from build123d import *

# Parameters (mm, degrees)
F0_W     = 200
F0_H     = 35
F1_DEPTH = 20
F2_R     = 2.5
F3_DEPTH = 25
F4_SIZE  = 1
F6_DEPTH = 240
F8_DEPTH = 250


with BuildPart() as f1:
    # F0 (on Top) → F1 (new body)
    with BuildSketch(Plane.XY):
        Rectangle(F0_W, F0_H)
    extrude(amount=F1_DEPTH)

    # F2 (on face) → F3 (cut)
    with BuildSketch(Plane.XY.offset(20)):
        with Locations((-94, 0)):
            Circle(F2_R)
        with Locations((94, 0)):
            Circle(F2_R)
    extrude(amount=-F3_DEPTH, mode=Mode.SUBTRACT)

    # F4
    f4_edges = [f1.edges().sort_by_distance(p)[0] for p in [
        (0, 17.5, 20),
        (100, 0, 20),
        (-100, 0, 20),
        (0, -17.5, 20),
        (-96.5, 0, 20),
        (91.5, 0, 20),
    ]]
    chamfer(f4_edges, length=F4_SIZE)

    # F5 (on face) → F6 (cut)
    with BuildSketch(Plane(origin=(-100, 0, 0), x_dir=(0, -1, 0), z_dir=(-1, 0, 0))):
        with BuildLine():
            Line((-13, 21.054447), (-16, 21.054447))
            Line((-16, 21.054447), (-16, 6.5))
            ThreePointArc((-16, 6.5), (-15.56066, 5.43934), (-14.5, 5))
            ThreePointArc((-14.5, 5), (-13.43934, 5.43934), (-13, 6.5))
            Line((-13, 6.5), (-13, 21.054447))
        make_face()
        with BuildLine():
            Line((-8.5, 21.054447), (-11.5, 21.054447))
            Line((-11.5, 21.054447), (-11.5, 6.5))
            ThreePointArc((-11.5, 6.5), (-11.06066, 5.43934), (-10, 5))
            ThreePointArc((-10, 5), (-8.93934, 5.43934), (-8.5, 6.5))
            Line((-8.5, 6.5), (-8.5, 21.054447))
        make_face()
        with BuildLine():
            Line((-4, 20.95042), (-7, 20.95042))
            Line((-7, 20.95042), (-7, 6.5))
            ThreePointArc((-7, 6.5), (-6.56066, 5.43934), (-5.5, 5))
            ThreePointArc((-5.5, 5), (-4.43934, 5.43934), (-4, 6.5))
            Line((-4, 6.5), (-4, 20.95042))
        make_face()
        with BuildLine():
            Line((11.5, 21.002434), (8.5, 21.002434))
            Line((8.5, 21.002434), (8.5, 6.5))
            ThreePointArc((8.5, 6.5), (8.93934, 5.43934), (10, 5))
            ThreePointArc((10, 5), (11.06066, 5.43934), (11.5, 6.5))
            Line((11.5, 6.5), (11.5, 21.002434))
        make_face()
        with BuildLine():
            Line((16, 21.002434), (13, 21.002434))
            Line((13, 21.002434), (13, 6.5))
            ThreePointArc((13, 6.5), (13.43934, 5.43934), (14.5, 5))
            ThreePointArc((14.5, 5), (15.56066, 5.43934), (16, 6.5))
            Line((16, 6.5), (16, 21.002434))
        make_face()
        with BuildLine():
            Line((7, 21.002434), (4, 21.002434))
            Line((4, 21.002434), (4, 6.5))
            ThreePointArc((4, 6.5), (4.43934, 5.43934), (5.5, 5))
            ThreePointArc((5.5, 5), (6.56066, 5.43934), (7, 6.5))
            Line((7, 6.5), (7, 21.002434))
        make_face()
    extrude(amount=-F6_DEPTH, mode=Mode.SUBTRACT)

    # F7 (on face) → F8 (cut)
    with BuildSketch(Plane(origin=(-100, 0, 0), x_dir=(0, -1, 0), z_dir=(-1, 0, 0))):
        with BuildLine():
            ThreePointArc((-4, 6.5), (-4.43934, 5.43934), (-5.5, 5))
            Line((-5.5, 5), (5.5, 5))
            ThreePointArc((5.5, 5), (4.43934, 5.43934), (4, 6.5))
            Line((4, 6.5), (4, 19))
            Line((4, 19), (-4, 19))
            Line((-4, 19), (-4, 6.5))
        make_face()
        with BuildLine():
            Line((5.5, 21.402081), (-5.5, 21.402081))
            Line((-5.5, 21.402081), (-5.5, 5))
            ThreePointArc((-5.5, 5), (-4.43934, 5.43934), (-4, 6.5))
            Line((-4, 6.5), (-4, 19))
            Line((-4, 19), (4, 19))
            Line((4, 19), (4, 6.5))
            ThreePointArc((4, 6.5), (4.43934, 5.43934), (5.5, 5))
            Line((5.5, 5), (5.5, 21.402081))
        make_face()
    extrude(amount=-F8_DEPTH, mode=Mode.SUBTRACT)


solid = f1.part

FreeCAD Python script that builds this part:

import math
import FreeCAD as App
import Part
import Sketcher

V = App.Vector
Q = App.Units.Quantity


def edges_at(feature, points):
    """Names of the edges that pass closest to the given points."""
    edges = feature.Shape.Edges
    near = lambda p: min(range(len(edges)), key=lambda i: edges[i].distToShape(Part.Vertex(*p))[0])
    return sorted({f"Edge{near(p) + 1}" for p in points})


def add_polygon(sketch, points):
    """Adds a closed chain of lines whose ends are joined by coincident constraints."""
    first, n = sketch.GeometryCount, len(points)
    for a, b in zip(points, points[1:] + points[:1]):
        sketch.addGeometry(Part.LineSegment(App.Vector(*a, 0), App.Vector(*b, 0)), False)
    for i in range(n):
        sketch.addConstraint(Sketcher.Constraint("Coincident", first + i, 2, first + (i + 1) % n, 1))

doc = App.newDocument("Part")
body = doc.addObject("PartDesign::Body", "Body")

# Sketch on XY plane
sketch1 = body.newObject("Sketcher::SketchObject", "Sketch")
sketch1.AttachmentSupport = (doc.getObject("XY_Plane"), [""])
sketch1.MapMode = "FlatFace"
add_polygon(sketch1, [(-100, 18), (-100, -18), (100, -18), (100, 18)])  # lines 0-3
sketch1.addConstraint(Sketcher.Constraint("Vertical", 0))
sketch1.addConstraint(Sketcher.Constraint("Horizontal", 1))
sketch1.addConstraint(Sketcher.Constraint("Vertical", 2))
sketch1.addConstraint(Sketcher.Constraint("Horizontal", 3))
sketch1.addConstraint(Sketcher.Constraint("Symmetric", 0, 2, 2, 2, -1, 1))
sketch1.addConstraint(Sketcher.Constraint("DistanceX", 1, 1, 1, 2, Q("200 mm")))
sketch1.addConstraint(Sketcher.Constraint("DistanceY", 0, 2, 0, 1, Q("35 mm")))
pad1 = body.newObject("PartDesign::Pad", "Pad")
pad1.Profile = sketch1
pad1.Length = 20

# Sketch on XY plane
sketch2 = body.newObject("Sketcher::SketchObject", "Sketch001")
sketch2.AttachmentSupport = (doc.getObject("XY_Plane"), [""])
sketch2.MapMode = "FlatFace"
sketch2.AttachmentOffset = App.Placement(V(0, 0, 20), App.Rotation())
sketch2.addGeometry(Part.Circle(V(-94, 0, 0), V(0, 0, 1), 2.5), False)
sketch2.addGeometry(Part.Circle(V(94, 0, 0), V(0, 0, 1), 2.5), False)
sketch2.addConstraint(Sketcher.Constraint("Equal", 0, 1))
sketch2.addConstraint(Sketcher.Constraint("Symmetric", 0, 3, 1, 3, -1, 1))
sketch2.addConstraint(Sketcher.Constraint("PointOnObject", 0, 3, -1))
sketch2.addConstraint(Sketcher.Constraint("Diameter", 0, Q("5 mm")))
sketch2.addConstraint(Sketcher.Constraint("DistanceX", 0, 3, -1, 1, Q("94 mm")))
pocket1 = body.newObject("PartDesign::Pocket", "Pocket")
pocket1.Profile = sketch2
pocket1.Length = 25
doc.recompute()

chamfer = body.newObject("PartDesign::Chamfer", "Chamfer")
chamfer.Base = (pocket1, edges_at(pocket1, [
    (0, 17.5, 20),
    (100, 0, 20),
    (-100, 0, 20),
    (0, -17.5, 20),
    (-96.5, 0, 20),
    (91.5, 0, 20),
]))
chamfer.Size = 1

# Sketch on YZ plane
sketch3 = body.newObject("Sketcher::SketchObject", "Sketch002")
sketch3.AttachmentSupport = (doc.getObject("YZ_Plane"), [""])
sketch3.MapMode = "FlatFace"
sketch3.AttachmentOffset = App.Placement(V(0, 0, -100), App.Rotation())
sketch3.addGeometry(Part.LineSegment(V(13, 21.1, 0), V(16, 21.1, 0)), False)
sketch3.addGeometry(Part.LineSegment(V(16, 21.1, 0), V(16, 6.5, 0)), False)
sketch3.addGeometry(Part.ArcOfCircle(Part.Circle(V(14.5, 6.5, 0), V(0, 0, 1), 1.5), math.radians(-90), math.radians(0)), False)
sketch3.addGeometry(Part.ArcOfCircle(Part.Circle(V(14.5, 6.5, 0), V(0, 0, 1), 1.5), math.radians(-180), math.radians(-90)), False)
sketch3.addGeometry(Part.LineSegment(V(13, 6.5, 0), V(13, 21.1, 0)), False)
sketch3.addGeometry(Part.LineSegment(V(8.5, 21.1, 0), V(11.5, 21.1, 0)), False)
sketch3.addGeometry(Part.LineSegment(V(11.5, 21.1, 0), V(11.5, 6.5, 0)), False)
sketch3.addGeometry(Part.ArcOfCircle(Part.Circle(V(10, 6.5, 0), V(0, 0, 1), 1.5), math.radians(-90), math.radians(0)), False)
sketch3.addGeometry(Part.ArcOfCircle(Part.Circle(V(10, 6.5, 0), V(0, 0, 1), 1.5), math.radians(-180), math.radians(-90)), False)
sketch3.addGeometry(Part.LineSegment(V(8.5, 6.5, 0), V(8.5, 21.1, 0)), False)
sketch3.addGeometry(Part.LineSegment(V(4, 21, 0), V(7, 21, 0)), False)
sketch3.addGeometry(Part.LineSegment(V(7, 21, 0), V(7, 6.5, 0)), False)
sketch3.addGeometry(Part.ArcOfCircle(Part.Circle(V(5.5, 6.5, 0), V(0, 0, 1), 1.5), math.radians(-90), math.radians(0)), False)
sketch3.addGeometry(Part.ArcOfCircle(Part.Circle(V(5.5, 6.5, 0), V(0, 0, 1), 1.5), math.radians(-180), math.radians(-90)), False)
sketch3.addGeometry(Part.LineSegment(V(4, 6.5, 0), V(4, 21, 0)), False)
sketch3.addGeometry(Part.LineSegment(V(-11.5, 21, 0), V(-8.5, 21, 0)), False)
sketch3.addGeometry(Part.LineSegment(V(-8.5, 21, 0), V(-8.5, 6.5, 0)), False)
sketch3.addGeometry(Part.ArcOfCircle(Part.Circle(V(-10, 6.5, 0), V(0, 0, 1), 1.5), math.radians(-90), math.radians(0)), False)
sketch3.addGeometry(Part.ArcOfCircle(Part.Circle(V(-10, 6.5, 0), V(0, 0, 1), 1.5), math.radians(-180), math.radians(-90)), False)
sketch3.addGeometry(Part.LineSegment(V(-11.5, 6.5, 0), V(-11.5, 21, 0)), False)
sketch3.addGeometry(Part.LineSegment(V(-16, 21, 0), V(-13, 21, 0)), False)
sketch3.addGeometry(Part.LineSegment(V(-13, 21, 0), V(-13, 6.5, 0)), False)
sketch3.addGeometry(Part.ArcOfCircle(Part.Circle(V(-14.5, 6.5, 0), V(0, 0, 1), 1.5), math.radians(-90), math.radians(0)), False)
sketch3.addGeometry(Part.ArcOfCircle(Part.Circle(V(-14.5, 6.5, 0), V(0, 0, 1), 1.5), math.radians(-180), math.radians(-90)), False)
sketch3.addGeometry(Part.LineSegment(V(-16, 6.5, 0), V(-16, 21, 0)), False)
sketch3.addGeometry(Part.LineSegment(V(-7, 21, 0), V(-4, 21, 0)), False)
sketch3.addGeometry(Part.LineSegment(V(-4, 21, 0), V(-4, 6.5, 0)), False)
sketch3.addGeometry(Part.ArcOfCircle(Part.Circle(V(-5.5, 6.5, 0), V(0, 0, 1), 1.5), math.radians(-90), math.radians(0)), False)
sketch3.addGeometry(Part.ArcOfCircle(Part.Circle(V(-5.5, 6.5, 0), V(0, 0, 1), 1.5), math.radians(-180), math.radians(-90)), False)
sketch3.addGeometry(Part.LineSegment(V(-7, 6.5, 0), V(-7, 21, 0)), False)
sketch3.addConstraint(Sketcher.Constraint("Coincident", 0, 2, 1, 1))
sketch3.addConstraint(Sketcher.Constraint("Tangent", 1, 2, 2, 2))
sketch3.addConstraint(Sketcher.Constraint("Tangent", 2, 1, 3, 2))
sketch3.addConstraint(Sketcher.Constraint("Tangent", 3, 1, 4, 1))
sketch3.addConstraint(Sketcher.Constraint("Coincident", 4, 2, 0, 1))
sketch3.addConstraint(Sketcher.Constraint("Coincident", 5, 2, 6, 1))
sketch3.addConstraint(Sketcher.Constraint("Tangent", 6, 2, 7, 2))
sketch3.addConstraint(Sketcher.Constraint("Tangent", 7, 1, 8, 2))
sketch3.addConstraint(Sketcher.Constraint("Tangent", 8, 1, 9, 1))
sketch3.addConstraint(Sketcher.Constraint("Coincident", 9, 2, 5, 1))
sketch3.addConstraint(Sketcher.Constraint("Coincident", 10, 2, 11, 1))
sketch3.addConstraint(Sketcher.Constraint("Tangent", 11, 2, 12, 2))
sketch3.addConstraint(Sketcher.Constraint("Tangent", 12, 1, 13, 2))
sketch3.addConstraint(Sketcher.Constraint("Tangent", 13, 1, 14, 1))
sketch3.addConstraint(Sketcher.Constraint("Coincident", 14, 2, 10, 1))
sketch3.addConstraint(Sketcher.Constraint("Coincident", 15, 2, 16, 1))
sketch3.addConstraint(Sketcher.Constraint("Tangent", 16, 2, 17, 2))
sketch3.addConstraint(Sketcher.Constraint("Tangent", 17, 1, 18, 2))
sketch3.addConstraint(Sketcher.Constraint("Tangent", 18, 1, 19, 1))
sketch3.addConstraint(Sketcher.Constraint("Coincident", 19, 2, 15, 1))
sketch3.addConstraint(Sketcher.Constraint("Coincident", 20, 2, 21, 1))
sketch3.addConstraint(Sketcher.Constraint("Tangent", 21, 2, 22, 2))
sketch3.addConstraint(Sketcher.Constraint("Tangent", 22, 1, 23, 2))
sketch3.addConstraint(Sketcher.Constraint("Tangent", 23, 1, 24, 1))
sketch3.addConstraint(Sketcher.Constraint("Coincident", 24, 2, 20, 1))
sketch3.addConstraint(Sketcher.Constraint("Coincident", 25, 2, 26, 1))
sketch3.addConstraint(Sketcher.Constraint("Tangent", 26, 2, 27, 2))
sketch3.addConstraint(Sketcher.Constraint("Tangent", 27, 1, 28, 2))
sketch3.addConstraint(Sketcher.Constraint("Tangent", 28, 1, 29, 1))
sketch3.addConstraint(Sketcher.Constraint("Coincident", 29, 2, 25, 1))
sketch3.addConstraint(Sketcher.Constraint("Horizontal", 0))
sketch3.addConstraint(Sketcher.Constraint("Vertical", 1))
sketch3.addConstraint(Sketcher.Constraint("Vertical", 4))
sketch3.addConstraint(Sketcher.Constraint("Horizontal", 5))
sketch3.addConstraint(Sketcher.Constraint("Vertical", 6))
sketch3.addConstraint(Sketcher.Constraint("Vertical", 9))
sketch3.addConstraint(Sketcher.Constraint("Horizontal", 10))
sketch3.addConstraint(Sketcher.Constraint("Vertical", 11))
sketch3.addConstraint(Sketcher.Constraint("Vertical", 14))
sketch3.addConstraint(Sketcher.Constraint("Horizontal", 15))
sketch3.addConstraint(Sketcher.Constraint("Vertical", 16))
sketch3.addConstraint(Sketcher.Constraint("Vertical", 19))
sketch3.addConstraint(Sketcher.Constraint("Horizontal", 20))
sketch3.addConstraint(Sketcher.Constraint("Vertical", 21))
sketch3.addConstraint(Sketcher.Constraint("Vertical", 24))
sketch3.addConstraint(Sketcher.Constraint("Horizontal", 25))
sketch3.addConstraint(Sketcher.Constraint("Vertical", 26))
sketch3.addConstraint(Sketcher.Constraint("Vertical", 29))
sketch3.addConstraint(Sketcher.Constraint("Equal", 2, 3))
sketch3.addConstraint(Sketcher.Constraint("Equal", 3, 7))
sketch3.addConstraint(Sketcher.Constraint("Equal", 7, 8))
sketch3.addConstraint(Sketcher.Constraint("Equal", 8, 12))
sketch3.addConstraint(Sketcher.Constraint("Equal", 12, 13))
sketch3.addConstraint(Sketcher.Constraint("Equal", 13, 17))
sketch3.addConstraint(Sketcher.Constraint("Equal", 17, 18))
sketch3.addConstraint(Sketcher.Constraint("Equal", 18, 22))
sketch3.addConstraint(Sketcher.Constraint("Equal", 22, 23))
sketch3.addConstraint(Sketcher.Constraint("Equal", 23, 27))
sketch3.addConstraint(Sketcher.Constraint("Equal", 27, 28))
sketch3.addConstraint(Sketcher.Constraint("Symmetric", 7, 3, 17, 3, -2))
sketch3.addConstraint(Sketcher.Constraint("Symmetric", 2, 3, 22, 3, -2))
sketch3.addConstraint(Sketcher.Constraint("Symmetric", 12, 3, 27, 3, -2))
sketch3.addConstraint(Sketcher.Constraint("Horizontal", 3, 3, 7, 3))
sketch3.addConstraint(Sketcher.Constraint("Horizontal", 8, 3, 12, 3))
sketch3.addConstraint(Sketcher.Constraint("Horizontal", 4, 2, 5, 2))
sketch3.addConstraint(Sketcher.Constraint("Horizontal", 19, 2, 20, 2))
sketch3.addConstraint(Sketcher.Constraint("Horizontal", 24, 2, 25, 2))
sketch3.addConstraint(Sketcher.Constraint("Vertical", 3, 3, 2, 1))
sketch3.addConstraint(Sketcher.Constraint("Vertical", 8, 3, 7, 1))
sketch3.addConstraint(Sketcher.Constraint("Vertical", 13, 3, 12, 1))
sketch3.addConstraint(Sketcher.Constraint("Vertical", 18, 3, 17, 1))
sketch3.addConstraint(Sketcher.Constraint("Vertical", 23, 3, 22, 1))
sketch3.addConstraint(Sketcher.Constraint("Vertical", 28, 3, 27, 1))
sketch3.addConstraint(Sketcher.Constraint("Radius", 2, Q("1.500001 mm")))
sketch3.addConstraint(Sketcher.Constraint("DistanceX", -1, 1, 7, 3, Q("9.999999 mm")))
sketch3.addConstraint(Sketcher.Constraint("DistanceX", -1, 1, 0, 2, Q("16 mm")))
sketch3.addConstraint(Sketcher.Constraint("DistanceY", -1, 1, 2, 1, Q("5 mm")))
sketch3.addConstraint(Sketcher.Constraint("DistanceX", -1, 1, 10, 2, Q("7 mm")))
sketch3.addConstraint(Sketcher.Constraint("DistanceY", 11, 2, 11, 1, Q("14.45042 mm")))
sketch3.addConstraint(Sketcher.Constraint("DistanceY", 1, 2, 1, 1, Q("14.554447 mm")))
sketch3.addConstraint(Sketcher.Constraint("DistanceY", 16, 2, 16, 1, Q("14.502434 mm")))
pocket2 = body.newObject("PartDesign::Pocket", "Pocket001")
pocket2.Profile = sketch3
pocket2.Length = 240
pocket2.Reversed = True

# Sketch on YZ plane
sketch4 = body.newObject("Sketcher::SketchObject", "Sketch003")
sketch4.AttachmentSupport = (doc.getObject("YZ_Plane"), [""])
sketch4.MapMode = "FlatFace"
sketch4.AttachmentOffset = App.Placement(V(0, 0, -100), App.Rotation())
add_polygon(sketch4, [(6, 5), (-6, 5), (-6, 21), (6, 21)])  # lines 0-3
sketch4.addConstraint(Sketcher.Constraint("Horizontal", 0))
sketch4.addConstraint(Sketcher.Constraint("Vertical", 1))
sketch4.addConstraint(Sketcher.Constraint("Horizontal", 2))
sketch4.addConstraint(Sketcher.Constraint("Vertical", 3))
sketch4.addConstraint(Sketcher.Constraint("DistanceX", 0, 2, 0, 1, Q("11 mm")))
sketch4.addConstraint(Sketcher.Constraint("DistanceY", -1, 1, 0, 2, Q("5 mm")))
sketch4.addConstraint(Sketcher.Constraint("DistanceX", 0, 2, -1, 1, Q("5.5 mm")))
sketch4.addConstraint(Sketcher.Constraint("DistanceY", 1, 1, 1, 2, Q("16.402081 mm")))
pocket3 = body.newObject("PartDesign::Pocket", "Pocket002")
pocket3.Profile = sketch4
pocket3.Length = 250
pocket3.Reversed = True

doc.recompute()
